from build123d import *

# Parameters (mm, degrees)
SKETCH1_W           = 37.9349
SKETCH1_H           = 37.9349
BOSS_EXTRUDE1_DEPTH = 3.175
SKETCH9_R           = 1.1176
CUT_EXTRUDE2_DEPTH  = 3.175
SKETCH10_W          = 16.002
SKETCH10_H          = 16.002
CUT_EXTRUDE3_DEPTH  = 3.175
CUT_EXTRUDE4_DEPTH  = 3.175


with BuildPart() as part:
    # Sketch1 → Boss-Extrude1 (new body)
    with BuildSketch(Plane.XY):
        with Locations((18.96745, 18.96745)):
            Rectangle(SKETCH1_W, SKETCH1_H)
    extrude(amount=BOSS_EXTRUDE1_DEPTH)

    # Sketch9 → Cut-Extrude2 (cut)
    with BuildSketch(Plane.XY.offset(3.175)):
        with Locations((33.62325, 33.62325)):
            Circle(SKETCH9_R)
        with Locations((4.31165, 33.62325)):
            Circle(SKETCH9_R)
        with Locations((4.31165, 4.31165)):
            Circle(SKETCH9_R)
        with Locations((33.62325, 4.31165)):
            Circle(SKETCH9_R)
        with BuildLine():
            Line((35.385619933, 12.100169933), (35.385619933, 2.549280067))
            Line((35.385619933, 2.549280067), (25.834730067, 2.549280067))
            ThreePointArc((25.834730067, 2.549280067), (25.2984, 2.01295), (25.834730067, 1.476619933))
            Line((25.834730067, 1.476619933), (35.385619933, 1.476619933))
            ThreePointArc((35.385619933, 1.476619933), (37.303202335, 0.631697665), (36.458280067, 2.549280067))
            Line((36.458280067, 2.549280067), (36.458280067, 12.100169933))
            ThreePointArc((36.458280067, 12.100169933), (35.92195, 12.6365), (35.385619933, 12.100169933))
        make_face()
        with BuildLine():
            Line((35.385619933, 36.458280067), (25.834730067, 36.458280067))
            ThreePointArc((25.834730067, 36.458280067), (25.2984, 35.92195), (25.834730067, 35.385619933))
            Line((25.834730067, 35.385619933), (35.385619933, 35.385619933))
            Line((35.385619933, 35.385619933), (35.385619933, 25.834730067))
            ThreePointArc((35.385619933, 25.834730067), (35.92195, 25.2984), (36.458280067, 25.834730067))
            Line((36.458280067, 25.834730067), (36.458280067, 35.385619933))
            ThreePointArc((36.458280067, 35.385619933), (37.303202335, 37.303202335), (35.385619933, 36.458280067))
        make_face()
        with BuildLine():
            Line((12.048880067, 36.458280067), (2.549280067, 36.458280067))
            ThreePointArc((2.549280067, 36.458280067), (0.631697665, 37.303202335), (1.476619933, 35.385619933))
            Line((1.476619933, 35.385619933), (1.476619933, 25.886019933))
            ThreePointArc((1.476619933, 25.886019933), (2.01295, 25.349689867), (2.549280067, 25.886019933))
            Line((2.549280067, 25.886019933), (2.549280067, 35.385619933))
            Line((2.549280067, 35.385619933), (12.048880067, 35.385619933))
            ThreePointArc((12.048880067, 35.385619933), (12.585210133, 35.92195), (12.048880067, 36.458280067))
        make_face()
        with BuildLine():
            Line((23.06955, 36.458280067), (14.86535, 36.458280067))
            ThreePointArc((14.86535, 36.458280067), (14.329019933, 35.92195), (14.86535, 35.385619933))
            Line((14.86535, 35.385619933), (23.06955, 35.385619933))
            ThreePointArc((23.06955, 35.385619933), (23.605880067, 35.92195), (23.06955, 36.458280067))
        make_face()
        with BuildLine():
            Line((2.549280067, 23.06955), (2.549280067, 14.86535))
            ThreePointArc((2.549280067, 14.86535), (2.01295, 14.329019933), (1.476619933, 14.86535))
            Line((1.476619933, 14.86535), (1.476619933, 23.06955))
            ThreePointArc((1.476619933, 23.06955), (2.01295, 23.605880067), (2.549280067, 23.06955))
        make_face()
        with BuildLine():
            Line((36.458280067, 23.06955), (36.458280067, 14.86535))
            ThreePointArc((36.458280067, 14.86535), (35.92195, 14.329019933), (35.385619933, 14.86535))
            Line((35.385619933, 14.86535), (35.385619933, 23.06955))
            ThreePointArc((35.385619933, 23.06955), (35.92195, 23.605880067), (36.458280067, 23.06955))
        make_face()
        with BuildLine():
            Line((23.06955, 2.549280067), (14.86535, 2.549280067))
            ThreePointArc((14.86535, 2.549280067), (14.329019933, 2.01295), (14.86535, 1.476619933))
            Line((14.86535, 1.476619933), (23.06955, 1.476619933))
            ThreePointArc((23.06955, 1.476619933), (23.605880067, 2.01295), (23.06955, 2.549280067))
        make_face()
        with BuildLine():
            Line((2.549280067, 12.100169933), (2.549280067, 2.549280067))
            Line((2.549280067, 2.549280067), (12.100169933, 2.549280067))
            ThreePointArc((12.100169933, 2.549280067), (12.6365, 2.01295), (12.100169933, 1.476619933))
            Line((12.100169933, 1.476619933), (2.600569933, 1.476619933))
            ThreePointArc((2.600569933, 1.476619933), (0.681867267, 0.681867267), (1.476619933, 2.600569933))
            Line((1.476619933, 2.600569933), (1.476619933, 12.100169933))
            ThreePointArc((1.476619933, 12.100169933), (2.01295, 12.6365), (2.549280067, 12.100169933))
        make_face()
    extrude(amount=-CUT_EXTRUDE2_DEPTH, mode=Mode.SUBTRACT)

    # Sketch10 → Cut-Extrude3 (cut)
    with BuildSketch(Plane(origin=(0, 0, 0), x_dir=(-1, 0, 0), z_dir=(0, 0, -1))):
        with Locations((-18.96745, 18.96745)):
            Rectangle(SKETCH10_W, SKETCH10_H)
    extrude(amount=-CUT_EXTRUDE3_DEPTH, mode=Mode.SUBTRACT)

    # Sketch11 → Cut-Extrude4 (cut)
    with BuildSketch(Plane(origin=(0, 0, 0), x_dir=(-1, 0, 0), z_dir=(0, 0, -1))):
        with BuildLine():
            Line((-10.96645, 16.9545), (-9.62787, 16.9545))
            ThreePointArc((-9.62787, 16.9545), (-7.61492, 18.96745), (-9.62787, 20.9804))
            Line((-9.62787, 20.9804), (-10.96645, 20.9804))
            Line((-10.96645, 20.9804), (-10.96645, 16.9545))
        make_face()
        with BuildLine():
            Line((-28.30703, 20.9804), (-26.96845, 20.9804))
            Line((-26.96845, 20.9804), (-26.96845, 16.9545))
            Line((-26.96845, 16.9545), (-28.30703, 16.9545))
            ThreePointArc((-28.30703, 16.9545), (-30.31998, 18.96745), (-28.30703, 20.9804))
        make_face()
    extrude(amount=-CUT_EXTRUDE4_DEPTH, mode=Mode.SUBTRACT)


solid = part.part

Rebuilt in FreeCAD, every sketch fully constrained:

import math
import FreeCAD as App
import Part
import Sketcher

V = App.Vector
Q = App.Units.Quantity

doc = App.newDocument("Part")
body = doc.addObject("PartDesign::Body", "Body")

# Sketch on XY plane
sketch1 = body.newObject("Sketcher::SketchObject", "Sketch")
sketch1.AttachmentSupport = (doc.getObject("XY_Plane"), [""])
sketch1.MapMode = "FlatFace"
sketch1.addGeometry([
    Part.LineSegment(V(0, 38, 0), V(0, 0, 0)),
    Part.LineSegment(V(0, 0, 0), V(38, 0, 0)),
    Part.LineSegment(V(38, 0, 0), V(38, 38, 0)),
    Part.LineSegment(V(38, 38, 0), V(0, 38, 0)),
], False)
sketch1.addConstraint([
    Sketcher.Constraint("Coincident", 0, 2, 1, 1),
    Sketcher.Constraint("Coincident", 1, 2, 2, 1),
    Sketcher.Constraint("Coincident", 2, 2, 3, 1),
    Sketcher.Constraint("Coincident", 3, 2, 0, 1),
    Sketcher.Constraint("Vertical", 0),
    Sketcher.Constraint("Horizontal", 1),
    Sketcher.Constraint("Vertical", 2),
    Sketcher.Constraint("Horizontal", 3),
    Sketcher.Constraint("Coincident", 0, 2, -1, 1),
    Sketcher.Constraint("Equal", 3, 0),
    Sketcher.Constraint("DistanceX", 1, 1, 1, 2, Q("1.4935 in")),
])
pad1 = body.newObject("PartDesign::Pad", "Pad")
pad1.Profile = sketch1
pad1.Length = Q("0.125 in")

# Sketch on XY plane
sketch2 = body.newObject("Sketcher::SketchObject", "Sketch001")
sketch2.AttachmentSupport = (doc.getObject("XY_Plane"), [""])
sketch2.MapMode = "FlatFace"
sketch2.AttachmentOffset = App.Placement(V(0, 0, 0.125 * 25.4), App.Rotation())
sketch2.addGeometry([
    Part.Circle(V(33.6, 33.6, 0), V(0, 0, 1), 1.1),  # 0
    Part.Circle(V(4.3, 33.6, 0), V(0, 0, 1), 1.1),  # 1
    Part.Circle(V(4.3, 4.3, 0), V(0, 0, 1), 1.1),  # 2
    Part.Circle(V(33.6, 4.3, 0), V(0, 0, 1), 1.1),  # 3
    Part.LineSegment(V(35.4, 12.1, 0), V(35.4, 2.5, 0)),  # 4
    Part.LineSegment(V(35.4, 2.5, 0), V(25.8, 2.5, 0)),  # 5
    Part.ArcOfCircle(Part.Circle(V(25.8, 2, 0), V(0, 0, 1), 0.5), math.radians(90), math.radians(270)),  # 6
    Part.LineSegment(V(25.8, 1.5, 0), V(35.4, 1.5, 0)),  # 7
    Part.ArcOfCircle(Part.Circle(V(36.5, 1.4, 0), V(0, 0, 1), 1.1), math.radians(177), math.radians(453)),  # 8
    Part.LineSegment(V(36.5, 2.5, 0), V(36.5, 12.1, 0)),  # 9
    Part.ArcOfCircle(Part.Circle(V(35.9, 12.1, 0), V(0, 0, 1), 0.5), math.radians(0), math.radians(180)),  # 10
    Part.LineSegment(V(35.4, 36.5, 0), V(25.8, 36.5, 0)),  # 11
    Part.ArcOfCircle(Part.Circle(V(25.8, 35.9, 0), V(0, 0, 1), 0.5), math.radians(90), math.radians(270)),  # 12
    Part.LineSegment(V(25.8, 35.4, 0), V(35.4, 35.4, 0)),  # 13
    Part.LineSegment(V(35.4, 35.4, 0), V(35.4, 25.8, 0)),  # 14
    Part.ArcOfCircle(Part.Circle(V(35.9, 25.8, 0), V(0, 0, 1), 0.5), math.radians(180), math.radians(360)),  # 15
    Part.LineSegment(V(36.5, 25.8, 0), V(36.5, 35.4, 0)),  # 16
    Part.ArcOfCircle(Part.Circle(V(36.5, 36.5, 0), V(0, 0, 1), 1.1), math.radians(-93), math.radians(183)),  # 17
    Part.LineSegment(V(12, 36.5, 0), V(2.5, 36.5, 0)),  # 18
    Part.ArcOfCircle(Part.Circle(V(1.4, 36.5, 0), V(0, 0, 1), 1.1), math.radians(-3), math.radians(273)),  # 19
    Part.LineSegment(V(1.5, 35.4, 0), V(1.5, 25.9, 0)),  # 20
    Part.ArcOfCircle(Part.Circle(V(2, 25.9, 0), V(0, 0, 1), 0.5), math.radians(-180), math.radians(0)),  # 21
    Part.LineSegment(V(2.5, 25.9, 0), V(2.5, 35.4, 0)),  # 22
    Part.LineSegment(V(2.5, 35.4, 0), V(12, 35.4, 0)),  # 23
    Part.ArcOfCircle(Part.Circle(V(12, 35.9, 0), V(0, 0, 1), 0.5), math.radians(-90), math.radians(90)),  # 24
    Part.LineSegment(V(23.1, 36.5, 0), V(14.9, 36.5, 0)),  # 25
    Part.ArcOfCircle(Part.Circle(V(14.9, 35.9, 0), V(0, 0, 1), 0.5), math.radians(90), math.radians(270)),  # 26
    Part.LineSegment(V(14.9, 35.4, 0), V(23.1, 35.4, 0)),  # 27
    Part.ArcOfCircle(Part.Circle(V(23.1, 35.9, 0), V(0, 0, 1), 0.5), math.radians(-90), math.radians(90)),  # 28
    Part.LineSegment(V(2.5, 14.9, 0), V(2.5, 23.1, 0)),  # 29
    Part.ArcOfCircle(Part.Circle(V(2, 23.1, 0), V(0, 0, 1), 0.5), math.radians(0), math.radians(180)),  # 30
    Part.LineSegment(V(1.5, 23.1, 0), V(1.5, 14.9, 0)),  # 31
    Part.ArcOfCircle(Part.Circle(V(2, 14.9, 0), V(0, 0, 1), 0.5), math.radians(180), math.radians(360)),  # 32
    Part.LineSegment(V(36.5, 14.9, 0), V(36.5, 23.1, 0)),  # 33
    Part.ArcOfCircle(Part.Circle(V(35.9, 23.1, 0), V(0, 0, 1), 0.5), math.radians(0), math.radians(180)),  # 34
    Part.LineSegment(V(35.4, 23.1, 0), V(35.4, 14.9, 0)),  # 35
    Part.ArcOfCircle(Part.Circle(V(35.9, 14.9, 0), V(0, 0, 1), 0.5), math.radians(180), math.radians(360)),  # 36
    Part.LineSegment(V(23.1, 2.5, 0), V(14.9, 2.5, 0)),  # 37
    Part.ArcOfCircle(Part.Circle(V(14.9, 2, 0), V(0, 0, 1), 0.5), math.radians(90), math.radians(270)),  # 38
    Part.LineSegment(V(14.9, 1.5, 0), V(23.1, 1.5, 0)),  # 39
    Part.ArcOfCircle(Part.Circle(V(23.1, 2, 0), V(0, 0, 1), 0.5), math.radians(-90), math.radians(90)),  # 40
    Part.LineSegment(V(2.5, 2.5, 0), V(2.5, 12.1, 0)),  # 41
    Part.ArcOfCircle(Part.Circle(V(2, 12.1, 0), V(0, 0, 1), 0.5), math.radians(0), math.radians(180)),  # 42
    Part.LineSegment(V(1.5, 12.1, 0), V(1.5, 2.6, 0)),  # 43
    Part.ArcOfCircle(Part.Circle(V(1.5, 1.5, 0), V(0, 0, 1), 1.1), math.radians(90), math.radians(360)),  # 44
    Part.LineSegment(V(2.6, 1.5, 0), V(12.1, 1.5, 0)),  # 45
    Part.ArcOfCircle(Part.Circle(V(12.1, 2, 0), V(0, 0, 1), 0.5), math.radians(-90), math.radians(90)),  # 46
    Part.LineSegment(V(12.1, 2.5, 0), V(2.5, 2.5, 0)),  # 47
], False)
sketch2.addConstraint([
    Sketcher.Constraint("Coincident", 4, 2, 5, 1),
    Sketcher.Constraint("Tangent", 5, 2, 6, 1),
    Sketcher.Constraint("Tangent", 6, 2, 7, 1),
    Sketcher.Constraint("Coincident", 7, 2, 8, 1),
    Sketcher.Constraint("Coincident", 8, 2, 9, 1),
    Sketcher.Constraint("Tangent", 9, 2, 10, 1),
    Sketcher.Constraint("Tangent", 10, 2, 4, 1),
    Sketcher.Constraint("Tangent", 11, 2, 12, 1),
    Sketcher.Constraint("Tangent", 12, 2, 13, 1),
    Sketcher.Constraint("Coincident", 13, 2, 14, 1),
    Sketcher.Constraint("Tangent", 14, 2, 15, 1),
    Sketcher.Constraint("Tangent", 15, 2, 16, 1),
    Sketcher.Constraint("Coincident", 16, 2, 17, 1),
    Sketcher.Constraint("Coincident", 17, 2, 11, 1),
    Sketcher.Constraint("Coincident", 18, 2, 19, 1),
    Sketcher.Constraint("Coincident", 19, 2, 20, 1),
    Sketcher.Constraint("Tangent", 20, 2, 21, 1),
    Sketcher.Constraint("Tangent", 21, 2, 22, 1),
    Sketcher.Constraint("Coincident", 22, 2, 23, 1),
    Sketcher.Constraint("Tangent", 23, 2, 24, 1),
    Sketcher.Constraint("Tangent", 24, 2, 18, 1),
    Sketcher.Constraint("Tangent", 25, 2, 26, 1),
    Sketcher.Constraint("Tangent", 26, 2, 27, 1),
    Sketcher.Constraint("Tangent", 27, 2, 28, 1),
    Sketcher.Constraint("Tangent", 28, 2, 25, 1),
    Sketcher.Constraint("Tangent", 29, 2, 30, 1),
    Sketcher.Constraint("Tangent", 30, 2, 31, 1),
    Sketcher.Constraint("Tangent", 31, 2, 32, 1),
    Sketcher.Constraint("Tangent", 32, 2, 29, 1),
    Sketcher.Constraint("Tangent", 33, 2, 34, 1),
    Sketcher.Constraint("Tangent", 34, 2, 35, 1),
    Sketcher.Constraint("Tangent", 35, 2, 36, 1),
    Sketcher.Constraint("Tangent", 36, 2, 33, 1),
    Sketcher.Constraint("Tangent", 37, 2, 38, 1),
    Sketcher.Constraint("Tangent", 38, 2, 39, 1),
    Sketcher.Constraint("Tangent", 39, 2, 40, 1),
    Sketcher.Constraint("Tangent", 40, 2, 37, 1),
    Sketcher.Constraint("Tangent", 41, 2, 42, 1),
    Sketcher.Constraint("Tangent", 42, 2, 43, 1),
    Sketcher.Constraint("Coincident", 43, 2, 44, 1),
    Sketcher.Constraint("Coincident", 44, 2, 45, 1),
    Sketcher.Constraint("Tangent", 45, 2, 46, 1),
    Sketcher.Constraint("Tangent", 46, 2, 47, 1),
    Sketcher.Constraint("Coincident", 47, 2, 41, 1),
    Sketcher.Constraint("Vertical", 4),
    Sketcher.Constraint("Horizontal", 5),
    Sketcher.Constraint("Horizontal", 7),
    Sketcher.Constraint("Vertical", 9),
    Sketcher.Constraint("Horizontal", 11),
    Sketcher.Constraint("Horizontal", 13),
    Sketcher.Constraint("Vertical", 14),
    Sketcher.Constraint("Vertical", 16),
    Sketcher.Constraint("Horizontal", 18),
    Sketcher.Constraint("Vertical", 20),
    Sketcher.Constraint("Vertical", 22),
    Sketcher.Constraint("Horizontal", 23),
    Sketcher.Constraint("Horizontal", 25),
    Sketcher.Constraint("Horizontal", 27),
    Sketcher.Constraint("Vertical", 29),
    Sketcher.Constraint("Vertical", 31),
    Sketcher.Constraint("Vertical", 33),
    Sketcher.Constraint("Vertical", 35),
    Sketcher.Constraint("Horizontal", 37),
    Sketcher.Constraint("Horizontal", 39),
    Sketcher.Constraint("Vertical", 41),
    Sketcher.Constraint("Vertical", 43),
    Sketcher.Constraint("Horizontal", 45),
    Sketcher.Constraint("Horizontal", 47),
    Sketcher.Constraint("Equal", 0, 1),
    Sketcher.Constraint("Equal", 1, 2),
    Sketcher.Constraint("Equal", 2, 3),
    Sketcher.Constraint("Equal", 6, 10),
    Sketcher.Constraint("Equal", 10, 12),
    Sketcher.Constraint("Equal", 12, 15),
    Sketcher.Constraint("Equal", 8, 17),
    Sketcher.Constraint("Equal", 17, 19),
    Sketcher.Constraint("Equal", 15, 21),
    Sketcher.Constraint("Equal", 21, 24),
    Sketcher.Constraint("Equal", 24, 26),
    Sketcher.Constraint("Equal", 28, 30),
    Sketcher.Constraint("Equal", 32, 34),
    Sketcher.Constraint("Equal", 36, 38),
    Sketcher.Constraint("Equal", 40, 42),
    Sketcher.Constraint("Equal", 19, 44),
    Sketcher.Constraint("Equal", 42, 46),
    Sketcher.Constraint("Horizontal", 0, 3, 1, 3),
    Sketcher.Constraint("Horizontal", 2, 3, 3, 3),
    Sketcher.Constraint("Horizontal", 17, 3, 19, 3),
    Sketcher.Constraint("Horizontal", 12, 3, 24, 3),
    Sketcher.Constraint("Horizontal", 24, 3, 26, 3),
    Sketcher.Constraint("Horizontal", 30, 3, 34, 3),
    Sketcher.Constraint("Horizontal", 32, 3, 36, 3),
    Sketcher.Constraint("Horizontal", 6, 3, 38, 3),
    Sketcher.Constraint("Horizontal", 10, 3, 42, 3),
    Sketcher.Constraint("Horizontal", 40, 3, 46, 3),
    Sketcher.Constraint("Horizontal", 44, 3, 6, 2),
    Sketcher.Constraint("Horizontal", 5, 2, 8, 2),
    Sketcher.Constraint("Horizontal", 13, 2, 16, 2),
    Sketcher.Constraint("Horizontal", 16, 2, 19, 2),
    Sketcher.Constraint("Vertical", 1, 3, 2, 3),
    Sketcher.Constraint("Vertical", 0, 3, 3, 3),
    Sketcher.Constraint("Vertical", 6, 3, 12, 3),
    Sketcher.Constraint("Vertical", 10, 3, 15, 3),
    Sketcher.Constraint("Vertical", 8, 3, 17, 3),
    Sketcher.Constraint("Vertical", 21, 3, 30, 3),
    Sketcher.Constraint("Vertical", 15, 3, 34, 3),
    Sketcher.Constraint("Vertical", 26, 3, 38, 3),
    Sketcher.Constraint("Vertical", 28, 3, 40, 3),
    Sketcher.Constraint("Vertical", 32, 3, 42, 3),
    Sketcher.Constraint("Vertical", 4, 2, 7, 2),
    Sketcher.Constraint("Vertical", 44, 3, 19, 2),
    Sketcher.Constraint("Equal", 23, 45),
    Sketcher.Constraint("Equal", 13, 47),
    Sketcher.Constraint("Equal", 47, 4),
    Sketcher.Constraint("Equal", 9, 14),
    Sketcher.Constraint("Equal", 45, 20),
    Sketcher.Constraint("Equal", 39, 29),
    Sketcher.Constraint("Diameter", 0, Q("0.088 in")),
    Sketcher.Constraint("DistanceX", 18, 2, 18, 1, Q("0.374 in")),
    Sketcher.Constraint("DistanceX", 25, 2, 25, 1, Q("0.323 in")),
    Sketcher.Constraint("Radius", 6, Q("0.53633 mm")),
    Sketcher.Constraint("Radius", 8, Q("1.12395 mm")),
    Sketcher.Constraint("DistanceX", -1, 1, 0, 3, Q("33.62325 mm")),
    Sketcher.Constraint("DistanceY", -1, 1, 0, 3, Q("33.62325 mm")),
    Sketcher.Constraint("DistanceX", -1, 1, 1, 3, Q("4.31165 mm")),
    Sketcher.Constraint("DistanceY", -1, 1, 2, 3, Q("4.31165 mm")),
    Sketcher.Constraint("DistanceX", -1, 1, 6, 3, Q("25.83473 mm")),
    Sketcher.Constraint("DistanceY", -1, 1, 6, 3, Q("2.01295 mm")),
    Sketcher.Constraint("DistanceY", -1, 1, 12, 3, Q("35.92195 mm")),
    Sketcher.Constraint("DistanceX", -1, 1, 19, 3, Q("1.42645 mm")),
    Sketcher.Constraint("DistanceX", -1, 1, 26, 3, Q("14.86535 mm")),
    Sketcher.Constraint("DistanceY", -1, 1, 30, 3, Q("23.06955 mm")),
])
pocket1 = body.newObject("PartDesign::Pocket", "Pocket")
pocket1.Profile = sketch2
pocket1.Length = Q("0.125 in")

# Sketch on XY plane
sketch3 = body.newObject("Sketcher::SketchObject", "Sketch002")
sketch3.AttachmentSupport = (doc.getObject("XY_Plane"), [""])
sketch3.MapMode = "FlatFace"
sketch3.addGeometry([
    Part.LineSegment(V(27, 27, 0), V(27, 11, 0)),
    Part.LineSegment(V(27, 11, 0), V(11, 11, 0)),
    Part.LineSegment(V(11, 11, 0), V(11, 27, 0)),
    Part.LineSegment(V(11, 27, 0), V(27, 27, 0)),
], False)
sketch3.addConstraint([
    Sketcher.Constraint("Coincident", 0, 2, 1, 1),
    Sketcher.Constraint("Coincident", 1, 2, 2, 1),
    Sketcher.Constraint("Coincident", 2, 2, 3, 1),
    Sketcher.Constraint("Coincident", 3, 2, 0, 1),
    Sketcher.Constraint("Vertical", 0),
    Sketcher.Constraint("Horizontal", 1),
    Sketcher.Constraint("Vertical", 2),
    Sketcher.Constraint("Horizontal", 3),
    Sketcher.Constraint("Equal", 3, 0),
    Sketcher.Constraint("DistanceX", 1, 2, 1, 1, Q("0.63 in")),
    Sketcher.Constraint("DistanceX", -1, 1, 0, 2, Q("26.96845 mm")),
    Sketcher.Constraint("DistanceY", -1, 1, 0, 2, Q("10.96645 mm")),
])
pocket2 = body.newObject("PartDesign::Pocket", "Pocket001")
pocket2.Profile = sketch3
pocket2.Length = Q("0.125 in")
pocket2.Reversed = True

# Sketch on XY plane
sketch4 = body.newObject("Sketcher::SketchObject", "Sketch003")
sketch4.AttachmentSupport = (doc.getObject("XY_Plane"), [""])
sketch4.MapMode = "FlatFace"
sketch4.addGeometry([
    Part.LineSegment(V(11, 17, 0), V(9.6, 17, 0)),  # 0
    Part.ArcOfCircle(Part.Circle(V(9.6, 19, 0), V(0, 0, 1), 2), math.radians(90), math.radians(270)),  # 1
    Part.LineSegment(V(9.6, 21, 0), V(11, 21, 0)),  # 2
    Part.LineSegment(V(11, 21, 0), V(11, 17, 0)),  # 3
    Part.LineSegment(V(27, 21, 0), V(28.3, 21, 0)),  # 4
    Part.ArcOfCircle(Part.Circle(V(28.3, 19, 0), V(0, 0, 1), 2), math.radians(-90), math.radians(90)),  # 5
    Part.LineSegment(V(28.3, 17, 0), V(27, 17, 0)),  # 6
    Part.LineSegment(V(27, 17, 0), V(27, 21, 0)),  # 7
], False)
sketch4.addConstraint([
    Sketcher.Constraint("Tangent", 0, 2, 1, 2),
    Sketcher.Constraint("Tangent", 1, 1, 2, 1),
    Sketcher.Constraint("Coincident", 2, 2, 3, 1),
    Sketcher.Constraint("Coincident", 3, 2, 0, 1),
    Sketcher.Constraint("Tangent", 4, 2, 5, 2),
    Sketcher.Constraint("Tangent", 5, 1, 6, 1),
    Sketcher.Constraint("Coincident", 6, 2, 7, 1),
    Sketcher.Constraint("Coincident", 7, 2, 4, 1),
    Sketcher.Constraint("Horizontal", 0),
    Sketcher.Constraint("Horizontal", 2),
    Sketcher.Constraint("Vertical", 3),
    Sketcher.Constraint("Horizontal", 4),
    Sketcher.Constraint("Horizontal", 6),
    Sketcher.Constraint("Vertical", 7),
    Sketcher.Constraint("Equal", 1, 5),
    Sketcher.Constraint("Horizontal", 1, 3, 5, 3),
    Sketcher.Constraint("Equal", 2, 4),
    Sketcher.Constraint("DistanceX", 3, 2, 6, 2, Q("0.63 in")),
    Sketcher.Constraint("DistanceX", 0, 2, 0, 1, Q("0.0527 in")),
    Sketcher.Constraint("DistanceY", 3, 2, 3, 1, Q("0.1585 in")),
    Sketcher.Constraint("DistanceY", -1, 1, 1, 1, Q("0.826 in")),
    Sketcher.Constraint("DistanceX", -1, 1, 1, 3, Q("9.62787 mm")),
])
pocket3 = body.newObject("PartDesign::Pocket", "Pocket002")
pocket3.Profile = sketch4
pocket3.Length = Q("0.125 in")
pocket3.Reversed = True

doc.recompute()
